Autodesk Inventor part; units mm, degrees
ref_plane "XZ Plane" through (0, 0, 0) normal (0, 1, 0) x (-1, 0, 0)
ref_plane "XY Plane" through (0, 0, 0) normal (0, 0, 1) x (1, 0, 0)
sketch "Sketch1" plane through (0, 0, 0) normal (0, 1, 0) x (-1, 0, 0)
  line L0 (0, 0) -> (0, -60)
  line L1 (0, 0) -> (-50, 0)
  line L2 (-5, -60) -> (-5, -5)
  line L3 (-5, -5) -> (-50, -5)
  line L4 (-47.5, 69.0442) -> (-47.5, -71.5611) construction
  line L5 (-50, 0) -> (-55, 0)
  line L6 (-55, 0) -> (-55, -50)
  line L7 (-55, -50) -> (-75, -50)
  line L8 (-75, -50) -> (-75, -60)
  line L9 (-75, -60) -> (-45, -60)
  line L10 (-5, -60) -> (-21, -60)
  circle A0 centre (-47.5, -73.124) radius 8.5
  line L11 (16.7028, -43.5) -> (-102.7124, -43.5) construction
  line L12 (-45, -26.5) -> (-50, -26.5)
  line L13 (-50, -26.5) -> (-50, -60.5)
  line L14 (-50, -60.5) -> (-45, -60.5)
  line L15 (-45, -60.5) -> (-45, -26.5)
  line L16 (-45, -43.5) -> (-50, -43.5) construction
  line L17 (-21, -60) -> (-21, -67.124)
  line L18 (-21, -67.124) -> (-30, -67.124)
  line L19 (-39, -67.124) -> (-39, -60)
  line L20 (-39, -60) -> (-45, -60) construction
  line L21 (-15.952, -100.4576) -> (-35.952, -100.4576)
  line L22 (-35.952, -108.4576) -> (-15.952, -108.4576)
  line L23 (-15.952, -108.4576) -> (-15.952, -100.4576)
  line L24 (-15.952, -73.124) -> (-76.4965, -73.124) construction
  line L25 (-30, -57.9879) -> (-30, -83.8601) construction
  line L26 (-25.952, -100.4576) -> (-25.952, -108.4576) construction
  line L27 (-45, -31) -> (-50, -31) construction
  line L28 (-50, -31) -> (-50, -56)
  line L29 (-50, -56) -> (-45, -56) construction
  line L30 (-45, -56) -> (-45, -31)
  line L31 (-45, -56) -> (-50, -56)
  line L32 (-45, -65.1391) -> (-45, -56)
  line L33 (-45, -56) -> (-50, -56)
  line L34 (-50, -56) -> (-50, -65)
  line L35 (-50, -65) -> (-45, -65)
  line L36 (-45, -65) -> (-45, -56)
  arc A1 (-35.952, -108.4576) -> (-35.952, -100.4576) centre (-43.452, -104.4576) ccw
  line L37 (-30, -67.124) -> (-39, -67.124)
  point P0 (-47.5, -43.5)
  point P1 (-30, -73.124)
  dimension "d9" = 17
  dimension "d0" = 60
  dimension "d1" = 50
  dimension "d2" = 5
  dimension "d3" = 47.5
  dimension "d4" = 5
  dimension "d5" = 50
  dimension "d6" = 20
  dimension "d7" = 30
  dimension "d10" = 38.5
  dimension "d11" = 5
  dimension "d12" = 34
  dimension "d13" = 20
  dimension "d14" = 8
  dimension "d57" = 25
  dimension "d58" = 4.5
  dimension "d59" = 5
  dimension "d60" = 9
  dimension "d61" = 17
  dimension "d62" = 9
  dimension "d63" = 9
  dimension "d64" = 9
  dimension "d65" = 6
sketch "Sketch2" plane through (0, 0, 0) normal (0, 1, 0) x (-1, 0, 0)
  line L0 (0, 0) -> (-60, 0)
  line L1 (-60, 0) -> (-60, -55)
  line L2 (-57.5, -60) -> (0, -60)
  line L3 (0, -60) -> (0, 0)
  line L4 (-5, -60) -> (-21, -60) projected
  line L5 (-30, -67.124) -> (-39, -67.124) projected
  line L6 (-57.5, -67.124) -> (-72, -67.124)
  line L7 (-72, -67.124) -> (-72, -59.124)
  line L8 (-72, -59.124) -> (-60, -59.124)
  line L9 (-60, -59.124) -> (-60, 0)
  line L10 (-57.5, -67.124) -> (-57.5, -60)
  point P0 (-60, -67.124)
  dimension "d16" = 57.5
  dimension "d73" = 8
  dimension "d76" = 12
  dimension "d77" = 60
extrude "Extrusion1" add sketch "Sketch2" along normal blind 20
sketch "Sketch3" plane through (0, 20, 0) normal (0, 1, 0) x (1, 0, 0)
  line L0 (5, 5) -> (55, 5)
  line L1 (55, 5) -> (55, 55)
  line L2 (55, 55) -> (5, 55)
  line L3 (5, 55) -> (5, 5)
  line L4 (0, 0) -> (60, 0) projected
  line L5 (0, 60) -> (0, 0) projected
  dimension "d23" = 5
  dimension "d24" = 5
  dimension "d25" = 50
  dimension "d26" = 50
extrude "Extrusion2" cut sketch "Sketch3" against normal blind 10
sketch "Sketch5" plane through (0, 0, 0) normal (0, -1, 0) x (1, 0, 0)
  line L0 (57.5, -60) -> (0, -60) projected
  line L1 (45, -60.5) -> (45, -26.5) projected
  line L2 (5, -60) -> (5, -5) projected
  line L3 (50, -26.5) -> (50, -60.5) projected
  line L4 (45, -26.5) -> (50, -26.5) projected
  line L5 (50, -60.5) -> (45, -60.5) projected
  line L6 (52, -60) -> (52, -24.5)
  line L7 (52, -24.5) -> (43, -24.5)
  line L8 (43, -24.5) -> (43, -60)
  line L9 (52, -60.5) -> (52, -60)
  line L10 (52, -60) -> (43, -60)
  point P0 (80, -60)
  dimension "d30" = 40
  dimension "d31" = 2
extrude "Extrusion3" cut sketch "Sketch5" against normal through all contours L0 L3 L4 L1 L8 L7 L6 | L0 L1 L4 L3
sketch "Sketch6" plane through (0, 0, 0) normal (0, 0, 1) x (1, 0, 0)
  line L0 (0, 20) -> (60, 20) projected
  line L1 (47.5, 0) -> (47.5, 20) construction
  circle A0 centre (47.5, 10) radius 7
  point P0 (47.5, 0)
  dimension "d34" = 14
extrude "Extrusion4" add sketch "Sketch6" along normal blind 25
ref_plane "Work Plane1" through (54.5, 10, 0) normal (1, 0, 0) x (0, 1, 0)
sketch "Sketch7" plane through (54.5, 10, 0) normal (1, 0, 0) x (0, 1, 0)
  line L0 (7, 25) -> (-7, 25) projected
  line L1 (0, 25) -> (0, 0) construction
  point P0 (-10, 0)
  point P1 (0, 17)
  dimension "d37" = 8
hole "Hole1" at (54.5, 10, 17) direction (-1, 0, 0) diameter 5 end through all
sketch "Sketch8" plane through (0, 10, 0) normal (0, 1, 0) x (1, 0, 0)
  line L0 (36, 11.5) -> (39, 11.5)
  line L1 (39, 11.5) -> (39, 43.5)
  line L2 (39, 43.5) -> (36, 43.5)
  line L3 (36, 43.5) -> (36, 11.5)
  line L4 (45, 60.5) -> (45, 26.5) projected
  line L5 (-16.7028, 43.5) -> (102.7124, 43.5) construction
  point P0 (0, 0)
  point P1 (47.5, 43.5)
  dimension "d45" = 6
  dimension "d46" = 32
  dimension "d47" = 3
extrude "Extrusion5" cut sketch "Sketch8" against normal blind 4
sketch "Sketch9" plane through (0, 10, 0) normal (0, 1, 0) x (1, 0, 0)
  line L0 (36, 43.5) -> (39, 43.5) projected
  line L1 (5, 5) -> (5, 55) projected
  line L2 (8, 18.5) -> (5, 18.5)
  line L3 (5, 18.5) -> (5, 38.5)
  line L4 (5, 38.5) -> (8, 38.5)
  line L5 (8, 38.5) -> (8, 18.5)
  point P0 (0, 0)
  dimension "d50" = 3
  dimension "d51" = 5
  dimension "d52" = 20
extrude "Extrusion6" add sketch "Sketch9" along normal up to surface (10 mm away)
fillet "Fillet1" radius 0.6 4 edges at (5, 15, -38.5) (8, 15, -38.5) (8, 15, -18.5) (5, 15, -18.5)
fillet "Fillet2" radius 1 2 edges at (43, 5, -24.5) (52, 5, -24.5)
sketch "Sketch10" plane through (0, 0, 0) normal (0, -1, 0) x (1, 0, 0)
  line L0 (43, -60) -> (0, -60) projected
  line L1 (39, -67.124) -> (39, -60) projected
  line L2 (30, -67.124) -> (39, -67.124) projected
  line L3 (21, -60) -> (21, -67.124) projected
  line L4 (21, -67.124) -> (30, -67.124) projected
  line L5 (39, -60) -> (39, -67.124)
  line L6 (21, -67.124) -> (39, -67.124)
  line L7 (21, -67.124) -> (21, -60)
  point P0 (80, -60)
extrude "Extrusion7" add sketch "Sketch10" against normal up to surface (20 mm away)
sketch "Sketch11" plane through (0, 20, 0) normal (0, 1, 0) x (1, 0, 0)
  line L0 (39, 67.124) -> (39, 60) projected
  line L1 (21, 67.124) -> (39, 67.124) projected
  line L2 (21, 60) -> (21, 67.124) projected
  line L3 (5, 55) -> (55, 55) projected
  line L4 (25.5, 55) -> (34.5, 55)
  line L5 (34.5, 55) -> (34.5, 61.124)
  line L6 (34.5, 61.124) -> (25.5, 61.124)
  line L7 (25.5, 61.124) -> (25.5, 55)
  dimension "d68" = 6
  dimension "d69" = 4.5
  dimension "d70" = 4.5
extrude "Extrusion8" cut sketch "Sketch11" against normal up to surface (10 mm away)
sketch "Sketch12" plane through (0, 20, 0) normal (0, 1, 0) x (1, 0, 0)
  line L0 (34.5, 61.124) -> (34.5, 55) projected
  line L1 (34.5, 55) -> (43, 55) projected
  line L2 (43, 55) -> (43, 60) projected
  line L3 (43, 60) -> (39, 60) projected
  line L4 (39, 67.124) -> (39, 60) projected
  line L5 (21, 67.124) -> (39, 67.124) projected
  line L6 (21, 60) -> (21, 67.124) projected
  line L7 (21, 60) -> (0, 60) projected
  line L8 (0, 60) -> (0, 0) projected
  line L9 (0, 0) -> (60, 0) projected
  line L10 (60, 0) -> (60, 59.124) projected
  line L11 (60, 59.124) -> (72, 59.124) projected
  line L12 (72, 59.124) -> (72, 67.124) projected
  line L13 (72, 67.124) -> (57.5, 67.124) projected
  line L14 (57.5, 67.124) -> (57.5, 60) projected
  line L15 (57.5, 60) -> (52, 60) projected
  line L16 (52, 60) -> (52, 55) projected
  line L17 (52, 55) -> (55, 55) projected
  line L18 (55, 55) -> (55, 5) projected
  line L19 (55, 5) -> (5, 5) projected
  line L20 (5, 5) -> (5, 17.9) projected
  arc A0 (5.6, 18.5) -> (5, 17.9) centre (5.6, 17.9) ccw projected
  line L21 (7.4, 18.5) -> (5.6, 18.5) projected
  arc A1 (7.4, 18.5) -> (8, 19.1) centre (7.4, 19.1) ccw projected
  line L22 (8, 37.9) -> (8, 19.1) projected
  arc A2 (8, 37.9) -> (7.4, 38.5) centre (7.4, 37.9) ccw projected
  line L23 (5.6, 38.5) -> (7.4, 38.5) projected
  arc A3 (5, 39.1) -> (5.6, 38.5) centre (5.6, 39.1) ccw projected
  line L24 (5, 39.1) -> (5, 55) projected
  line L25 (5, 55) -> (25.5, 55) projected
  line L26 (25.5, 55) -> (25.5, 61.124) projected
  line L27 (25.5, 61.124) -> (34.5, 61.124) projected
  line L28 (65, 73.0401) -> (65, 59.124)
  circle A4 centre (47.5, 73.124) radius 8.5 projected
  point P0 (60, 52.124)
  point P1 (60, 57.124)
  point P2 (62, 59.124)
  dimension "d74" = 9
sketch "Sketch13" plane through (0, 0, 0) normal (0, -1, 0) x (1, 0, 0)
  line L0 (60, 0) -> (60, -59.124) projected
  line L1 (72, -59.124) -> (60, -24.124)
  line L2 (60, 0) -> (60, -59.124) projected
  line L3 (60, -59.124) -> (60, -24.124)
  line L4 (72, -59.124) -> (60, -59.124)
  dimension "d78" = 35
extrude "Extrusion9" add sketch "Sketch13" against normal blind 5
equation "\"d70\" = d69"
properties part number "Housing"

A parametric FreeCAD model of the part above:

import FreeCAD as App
import Part
import Sketcher
from FreeCAD import Vector
Q = App.Units.Quantity


def edges_at(feature, points):
    """Names of the edges that pass closest to the given points."""
    edges = feature.Shape.Edges
    near = lambda p: min(range(len(edges)), key=lambda i: edges[i].distToShape(Part.Vertex(*p))[0])
    return sorted({f"Edge{near(p) + 1}" for p in points})

doc = App.newDocument("Part")
body = doc.addObject("PartDesign::Body", "Body")

sketch1 = body.newObject("Sketcher::SketchObject", "Sketch")
sketch1.AttachmentSupport = (doc.getObject("XZ_Plane"), [""])
sketch1.MapMode = "FlatFace"
sketch1.addGeometry(Part.LineSegment(Vector(0, -60, 0), Vector(0, 0, 0)), False)
sketch1.addGeometry(Part.LineSegment(Vector(0, 0, 0), Vector(60, 0, 0)), False)
sketch1.addGeometry(Part.LineSegment(Vector(60, 0, 0), Vector(60, -59, 0)), False)
sketch1.addGeometry(Part.LineSegment(Vector(60, -59, 0), Vector(72, -59, 0)), False)
sketch1.addGeometry(Part.LineSegment(Vector(72, -59, 0), Vector(72, -67, 0)), False)
sketch1.addGeometry(Part.LineSegment(Vector(72, -67, 0), Vector(58, -67, 0)), False)
sketch1.addGeometry(Part.LineSegment(Vector(58, -67, 0), Vector(58, -60, 0)), False)
sketch1.addGeometry(Part.LineSegment(Vector(58, -60, 0), Vector(0, -60, 0)), False)
sketch1.addConstraint(Sketcher.Constraint("Coincident", 0, 2, 1, 1))
sketch1.addConstraint(Sketcher.Constraint("Coincident", 1, 2, 2, 1))
sketch1.addConstraint(Sketcher.Constraint("Coincident", 2, 2, 3, 1))
sketch1.addConstraint(Sketcher.Constraint("Coincident", 3, 2, 4, 1))
sketch1.addConstraint(Sketcher.Constraint("Coincident", 4, 2, 5, 1))
sketch1.addConstraint(Sketcher.Constraint("Coincident", 5, 2, 6, 1))
sketch1.addConstraint(Sketcher.Constraint("Coincident", 6, 2, 7, 1))
sketch1.addConstraint(Sketcher.Constraint("Coincident", 7, 2, 0, 1))
sketch1.addConstraint(Sketcher.Constraint("Vertical", 0))
sketch1.addConstraint(Sketcher.Constraint("Horizontal", 1))
sketch1.addConstraint(Sketcher.Constraint("Vertical", 2))
sketch1.addConstraint(Sketcher.Constraint("Horizontal", 3))
sketch1.addConstraint(Sketcher.Constraint("Vertical", 4))
sketch1.addConstraint(Sketcher.Constraint("Horizontal", 5))
sketch1.addConstraint(Sketcher.Constraint("Vertical", 6))
sketch1.addConstraint(Sketcher.Constraint("Horizontal", 7))
sketch1.addConstraint(Sketcher.Constraint("Coincident", 0, 2, -1, 1))
sketch1.addConstraint(Sketcher.Constraint("Equal", 1, 0))
sketch1.addConstraint(Sketcher.Constraint("DistanceX", 1, 1, 1, 2, Q("60 mm")))
sketch1.addConstraint(Sketcher.Constraint("DistanceX", 3, 1, 3, 2, Q("12 mm")))
sketch1.addConstraint(Sketcher.Constraint("DistanceY", 4, 2, 4, 1, Q("8 mm")))
sketch1.addConstraint(Sketcher.Constraint("DistanceX", 7, 2, 7, 1, Q("57.5 mm")))
sketch1.addConstraint(Sketcher.Constraint("DistanceY", 2, 2, 2, 1, Q("59.124 mm")))
pad1 = body.newObject("PartDesign::Pad", "Pad")
pad1.Profile = sketch1
pad1.Length = 20
pad1.Reversed = True

sketch2 = body.newObject("Sketcher::SketchObject", "Sketch001")
sketch2.AttachmentSupport = (doc.getObject("XZ_Plane"), [""])
sketch2.MapMode = "FlatFace"
sketch2.AttachmentOffset = App.Placement(Vector(0, 0, -20), App.Rotation())
sketch2.addGeometry(Part.LineSegment(Vector(5, -55, 0), Vector(5, -5, 0)), False)
sketch2.addGeometry(Part.LineSegment(Vector(5, -5, 0), Vector(55, -5, 0)), False)
sketch2.addGeometry(Part.LineSegment(Vector(55, -5, 0), Vector(55, -55, 0)), False)
sketch2.addGeometry(Part.LineSegment(Vector(55, -55, 0), Vector(5, -55, 0)), False)
sketch2.addConstraint(Sketcher.Constraint("Coincident", 0, 2, 1, 1))
sketch2.addConstraint(Sketcher.Constraint("Coincident", 1, 2, 2, 1))
sketch2.addConstraint(Sketcher.Constraint("Coincident", 2, 2, 3, 1))
sketch2.addConstraint(Sketcher.Constraint("Coincident", 3, 2, 0, 1))
sketch2.addConstraint(Sketcher.Constraint("Vertical", 0))
sketch2.addConstraint(Sketcher.Constraint("Horizontal", 1))
sketch2.addConstraint(Sketcher.Constraint("Vertical", 2))
sketch2.addConstraint(Sketcher.Constraint("Horizontal", 3))
sketch2.addConstraint(Sketcher.Constraint("Equal", 3, 0))
sketch2.addConstraint(Sketcher.Constraint("DistanceX", 1, 1, 1, 2, Q("50 mm")))
sketch2.addConstraint(Sketcher.Constraint("DistanceX", -1, 1, 0, 2, Q("5 mm")))
sketch2.addConstraint(Sketcher.Constraint("DistanceY", 0, 2, -1, 1, Q("5 mm")))
pocket1 = body.newObject("PartDesign::Pocket", "Pocket")
pocket1.Profile = sketch2
pocket1.Length = 10
pocket1.Reversed = True

sketch3 = body.newObject("Sketcher::SketchObject", "Sketch002")
sketch3.AttachmentSupport = (doc.getObject("XZ_Plane"), [""])
sketch3.MapMode = "FlatFace"
sketch3.addGeometry(Part.LineSegment(Vector(52, -60, 0), Vector(52, -24, 0)), False)
sketch3.addGeometry(Part.LineSegment(Vector(52, -24, 0), Vector(43, -24, 0)), False)
sketch3.addGeometry(Part.LineSegment(Vector(43, -24, 0), Vector(43, -60, 0)), False)
sketch3.addGeometry(Part.LineSegment(Vector(43, -60, 0), Vector(52, -60, 0)), False)
sketch3.addConstraint(Sketcher.Constraint("Coincident", 0, 2, 1, 1))
sketch3.addConstraint(Sketcher.Constraint("Coincident", 1, 2, 2, 1))
sketch3.addConstraint(Sketcher.Constraint("Coincident", 2, 2, 3, 1))
sketch3.addConstraint(Sketcher.Constraint("Coincident", 3, 2, 0, 1))
sketch3.addConstraint(Sketcher.Constraint("Vertical", 0))
sketch3.addConstraint(Sketcher.Constraint("Horizontal", 1))
sketch3.addConstraint(Sketcher.Constraint("Vertical", 2))
sketch3.addConstraint(Sketcher.Constraint("Horizontal", 3))
sketch3.addConstraint(Sketcher.Constraint("DistanceX", 1, 2, 1, 1, Q("9 mm")))
sketch3.addConstraint(Sketcher.Constraint("DistanceY", 0, 1, 0, 2, Q("35.5 mm")))
sketch3.addConstraint(Sketcher.Constraint("DistanceX", -1, 1, 0, 2, Q("52 mm")))
sketch3.addConstraint(Sketcher.Constraint("DistanceY", 2, 2, -1, 1, Q("60 mm")))
pocket2 = body.newObject("PartDesign::Pocket", "Pocket001")
pocket2.Profile = sketch3
pocket2.Type = "ThroughAll"

sketch4 = body.newObject("Sketcher::SketchObject", "Sketch003")
sketch4.AttachmentSupport = (doc.getObject("XY_Plane"), [""])
sketch4.MapMode = "FlatFace"
sketch4.addGeometry(Part.Circle(Vector(48, 10, 0), Vector(0, 0, 1), 7), False)
sketch4.addConstraint(Sketcher.Constraint("Diameter", 0, Q("14 mm")))
sketch4.addConstraint(Sketcher.Constraint("DistanceY", -1, 1, 0, 3, Q("10 mm")))
sketch4.addConstraint(Sketcher.Constraint("DistanceX", -1, 1, 0, 3, Q("47.5 mm")))
pad2 = body.newObject("PartDesign::Pad", "Pad001")
pad2.Profile = sketch4
pad2.Length = 25

sketch5 = body.newObject("Sketcher::SketchObject", "Sketch004")
sketch5.AttachmentSupport = (doc.getObject("YZ_Plane"), [""])
sketch5.MapMode = "FlatFace"
sketch5.AttachmentOffset = App.Placement(Vector(0, 0, 54.5), App.Rotation())
sketch5.addGeometry(Part.Circle(Vector(10, 17, 0), Vector(0, 0, 1), 2.5), False)
sketch5.addConstraint(Sketcher.Constraint("Diameter", 0, Q("5 mm")))
sketch5.addConstraint(Sketcher.Constraint("DistanceX", -1, 1, 0, 3, Q("10 mm")))
sketch5.addConstraint(Sketcher.Constraint("DistanceY", -1, 1, 0, 3, Q("17 mm")))
doc.recompute()
hole = body.newObject("PartDesign::Hole", "Hole")
hole.Profile = sketch5
hole.ThreadType = "None"
hole.Diameter = 5
hole.DepthType = "ThroughAll"

sketch6 = body.newObject("Sketcher::SketchObject", "Sketch005")
sketch6.AttachmentSupport = (doc.getObject("XZ_Plane"), [""])
sketch6.MapMode = "FlatFace"
sketch6.AttachmentOffset = App.Placement(Vector(0, 0, -10), App.Rotation())
sketch6.addGeometry(Part.LineSegment(Vector(36, -43.5, 0), Vector(36, -11.5, 0)), False)
sketch6.addGeometry(Part.LineSegment(Vector(36, -11.5, 0), Vector(39, -11.5, 0)), False)
sketch6.addGeometry(Part.LineSegment(Vector(39, -11.5, 0), Vector(39, -43.5, 0)), False)
sketch6.addGeometry(Part.LineSegment(Vector(39, -43.5, 0), Vector(36, -43.5, 0)), False)
sketch6.addConstraint(Sketcher.Constraint("Coincident", 0, 2, 1, 1))
sketch6.addConstraint(Sketcher.Constraint("Coincident", 1, 2, 2, 1))
sketch6.addConstraint(Sketcher.Constraint("Coincident", 2, 2, 3, 1))
sketch6.addConstraint(Sketcher.Constraint("Coincident", 3, 2, 0, 1))
sketch6.addConstraint(Sketcher.Constraint("Vertical", 0))
sketch6.addConstraint(Sketcher.Constraint("Horizontal", 1))
sketch6.addConstraint(Sketcher.Constraint("Vertical", 2))
sketch6.addConstraint(Sketcher.Constraint("Horizontal", 3))
sketch6.addConstraint(Sketcher.Constraint("DistanceX", 1, 1, 1, 2, Q("3 mm")))
sketch6.addConstraint(Sketcher.Constraint("DistanceY", 0, 1, 0, 2, Q("32 mm")))
sketch6.addConstraint(Sketcher.Constraint("DistanceX", -1, 1, 0, 2, Q("36 mm")))
sketch6.addConstraint(Sketcher.Constraint("DistanceY", 0, 2, -1, 1, Q("11.5 mm")))
pocket3 = body.newObject("PartDesign::Pocket", "Pocket002")
pocket3.Profile = sketch6
pocket3.Length = 4
pocket3.Reversed = True

sketch7 = body.newObject("Sketcher::SketchObject", "Sketch006")
sketch7.AttachmentSupport = (doc.getObject("XZ_Plane"), [""])
sketch7.MapMode = "FlatFace"
sketch7.AttachmentOffset = App.Placement(Vector(0, 0, -10), App.Rotation())
sketch7.addGeometry(Part.LineSegment(Vector(5, -38.5, 0), Vector(5, -18.5, 0)), False)
sketch7.addGeometry(Part.LineSegment(Vector(5, -18.5, 0), Vector(8, -18.5, 0)), False)
sketch7.addGeometry(Part.LineSegment(Vector(8, -18.5, 0), Vector(8, -38.5, 0)), False)
sketch7.addGeometry(Part.LineSegment(Vector(8, -38.5, 0), Vector(5, -38.5, 0)), False)
sketch7.addConstraint(Sketcher.Constraint("Coincident", 0, 2, 1, 1))
sketch7.addConstraint(Sketcher.Constraint("Coincident", 1, 2, 2, 1))
sketch7.addConstraint(Sketcher.Constraint("Coincident", 2, 2, 3, 1))
sketch7.addConstraint(Sketcher.Constraint("Coincident", 3, 2, 0, 1))
sketch7.addConstraint(Sketcher.Constraint("Vertical", 0))
sketch7.addConstraint(Sketcher.Constraint("Horizontal", 1))
sketch7.addConstraint(Sketcher.Constraint("Vertical", 2))
sketch7.addConstraint(Sketcher.Constraint("Horizontal", 3))
sketch7.addConstraint(Sketcher.Constraint("DistanceX", 1, 1, 1, 2, Q("3 mm")))
sketch7.addConstraint(Sketcher.Constraint("DistanceY", 0, 1, 0, 2, Q("20 mm")))
sketch7.addConstraint(Sketcher.Constraint("DistanceX", -1, 1, 0, 2, Q("5 mm")))
sketch7.addConstraint(Sketcher.Constraint("DistanceY", 0, 2, -1, 1, Q("18.5 mm")))
pad3 = body.newObject("PartDesign::Pad", "Pad002")
pad3.Profile = sketch7
pad3.Length = 10
pad3.Reversed = True
doc.recompute()

fillet = body.newObject("PartDesign::Fillet", "Fillet")
fillet.Base = (pad3, edges_at(pad3, [
    (5, 15, -38.5),
    (8, 15, -38.5),
    (8, 15, -18.5),
    (5, 15, -18.5),
]))
fillet.Radius = 0.6
doc.recompute()

fillet2 = body.newObject("PartDesign::Fillet", "Fillet001")
fillet2.Base = (fillet, edges_at(fillet, [(43, 5, -24.5), (52, 5, -24.5)]))
fillet2.Radius = 1

sketch8 = body.newObject("Sketcher::SketchObject", "Sketch007")
sketch8.AttachmentSupport = (doc.getObject("XZ_Plane"), [""])
sketch8.MapMode = "FlatFace"
sketch8.addGeometry(Part.LineSegment(Vector(39, -67, 0), Vector(39, -60, 0)), False)
sketch8.addGeometry(Part.LineSegment(Vector(39, -60, 0), Vector(21, -60, 0)), False)
sketch8.addGeometry(Part.LineSegment(Vector(21, -60, 0), Vector(21, -67, 0)), False)
sketch8.addGeometry(Part.LineSegment(Vector(21, -67, 0), Vector(39, -67, 0)), False)
sketch8.addConstraint(Sketcher.Constraint("Coincident", 0, 2, 1, 1))
sketch8.addConstraint(Sketcher.Constraint("Coincident", 1, 2, 2, 1))
sketch8.addConstraint(Sketcher.Constraint("Coincident", 2, 2, 3, 1))
sketch8.addConstraint(Sketcher.Constraint("Coincident", 3, 2, 0, 1))
sketch8.addConstraint(Sketcher.Constraint("Vertical", 0))
sketch8.addConstraint(Sketcher.Constraint("Horizontal", 1))
sketch8.addConstraint(Sketcher.Constraint("Vertical", 2))
sketch8.addConstraint(Sketcher.Constraint("Horizontal", 3))
sketch8.addConstraint(Sketcher.Constraint("DistanceX", 1, 2, 1, 1, Q("18 mm")))
sketch8.addConstraint(Sketcher.Constraint("DistanceX", -1, 1, 0, 2, Q("39 mm")))
sketch8.addConstraint(Sketcher.Constraint("DistanceY", 0, 2, -1, 1, Q("60 mm")))
sketch8.addConstraint(Sketcher.Constraint("DistanceY", 0, 1, 0, 2, Q("7.124 mm")))
pad4 = body.newObject("PartDesign::Pad", "Pad003")
pad4.Profile = sketch8
pad4.Length = 20
pad4.Reversed = True

sketch9 = body.newObject("Sketcher::SketchObject", "Sketch008")
sketch9.AttachmentSupport = (doc.getObject("XZ_Plane"), [""])
sketch9.MapMode = "FlatFace"
sketch9.AttachmentOffset = App.Placement(Vector(0, 0, -20), App.Rotation())
sketch9.addGeometry(Part.LineSegment(Vector(26, -61, 0), Vector(26, -55, 0)), False)
sketch9.addGeometry(Part.LineSegment(Vector(26, -55, 0), Vector(34, -55, 0)), False)
sketch9.addGeometry(Part.LineSegment(Vector(34, -55, 0), Vector(34, -61, 0)), False)
sketch9.addGeometry(Part.LineSegment(Vector(34, -61, 0), Vector(26, -61, 0)), False)
sketch9.addConstraint(Sketcher.Constraint("Coincident", 0, 2, 1, 1))
sketch9.addConstraint(Sketcher.Constraint("Coincident", 1, 2, 2, 1))
sketch9.addConstraint(Sketcher.Constraint("Coincident", 2, 2, 3, 1))
sketch9.addConstraint(Sketcher.Constraint("Coincident", 3, 2, 0, 1))
sketch9.addConstraint(Sketcher.Constraint("Vertical", 0))
sketch9.addConstraint(Sketcher.Constraint("Horizontal", 1))
sketch9.addConstraint(Sketcher.Constraint("Vertical", 2))
sketch9.addConstraint(Sketcher.Constraint("Horizontal", 3))
sketch9.addConstraint(Sketcher.Constraint("DistanceX", 1, 1, 1, 2, Q("9 mm")))
sketch9.addConstraint(Sketcher.Constraint("DistanceY", 0, 2, -1, 1, Q("55 mm")))
sketch9.addConstraint(Sketcher.Constraint("DistanceX", -1, 1, 0, 2, Q("25.5 mm")))
sketch9.addConstraint(Sketcher.Constraint("DistanceY", 0, 1, 0, 2, Q("6.124 mm")))
pocket4 = body.newObject("PartDesign::Pocket", "Pocket003")
pocket4.Profile = sketch9
pocket4.Length = 10
pocket4.Reversed = True

sketch10 = body.newObject("Sketcher::SketchObject", "Sketch009")
sketch10.AttachmentSupport = (doc.getObject("XZ_Plane"), [""])
sketch10.MapMode = "FlatFace"
sketch10.addGeometry(Part.LineSegment(Vector(72, -59, 0), Vector(60, -24, 0)), False)
sketch10.addGeometry(Part.LineSegment(Vector(60, -24, 0), Vector(60, -59, 0)), False)
sketch10.addGeometry(Part.LineSegment(Vector(60, -59, 0), Vector(72, -59, 0)), False)
sketch10.addConstraint(Sketcher.Constraint("Coincident", 0, 2, 1, 1))
sketch10.addConstraint(Sketcher.Constraint("Coincident", 1, 2, 2, 1))
sketch10.addConstraint(Sketcher.Constraint("Coincident", 2, 2, 0, 1))
sketch10.addConstraint(Sketcher.Constraint("Vertical", 1))
sketch10.addConstraint(Sketcher.Constraint("Horizontal", 2))
sketch10.addConstraint(Sketcher.Constraint("DistanceY", 1, 2, 1, 1, Q("35 mm")))
sketch10.addConstraint(Sketcher.Constraint("DistanceX", 2, 1, 2, 2, Q("12 mm")))
sketch10.addConstraint(Sketcher.Constraint("DistanceX", -1, 1, 0, 2, Q("60 mm")))
sketch10.addConstraint(Sketcher.Constraint("DistanceY", 0, 2, -1, 1, Q("24.124 mm")))
pad5 = body.newObject("PartDesign::Pad", "Pad004")
pad5.Profile = sketch10
pad5.Length = 5
pad5.Reversed = True

doc.recompute()
